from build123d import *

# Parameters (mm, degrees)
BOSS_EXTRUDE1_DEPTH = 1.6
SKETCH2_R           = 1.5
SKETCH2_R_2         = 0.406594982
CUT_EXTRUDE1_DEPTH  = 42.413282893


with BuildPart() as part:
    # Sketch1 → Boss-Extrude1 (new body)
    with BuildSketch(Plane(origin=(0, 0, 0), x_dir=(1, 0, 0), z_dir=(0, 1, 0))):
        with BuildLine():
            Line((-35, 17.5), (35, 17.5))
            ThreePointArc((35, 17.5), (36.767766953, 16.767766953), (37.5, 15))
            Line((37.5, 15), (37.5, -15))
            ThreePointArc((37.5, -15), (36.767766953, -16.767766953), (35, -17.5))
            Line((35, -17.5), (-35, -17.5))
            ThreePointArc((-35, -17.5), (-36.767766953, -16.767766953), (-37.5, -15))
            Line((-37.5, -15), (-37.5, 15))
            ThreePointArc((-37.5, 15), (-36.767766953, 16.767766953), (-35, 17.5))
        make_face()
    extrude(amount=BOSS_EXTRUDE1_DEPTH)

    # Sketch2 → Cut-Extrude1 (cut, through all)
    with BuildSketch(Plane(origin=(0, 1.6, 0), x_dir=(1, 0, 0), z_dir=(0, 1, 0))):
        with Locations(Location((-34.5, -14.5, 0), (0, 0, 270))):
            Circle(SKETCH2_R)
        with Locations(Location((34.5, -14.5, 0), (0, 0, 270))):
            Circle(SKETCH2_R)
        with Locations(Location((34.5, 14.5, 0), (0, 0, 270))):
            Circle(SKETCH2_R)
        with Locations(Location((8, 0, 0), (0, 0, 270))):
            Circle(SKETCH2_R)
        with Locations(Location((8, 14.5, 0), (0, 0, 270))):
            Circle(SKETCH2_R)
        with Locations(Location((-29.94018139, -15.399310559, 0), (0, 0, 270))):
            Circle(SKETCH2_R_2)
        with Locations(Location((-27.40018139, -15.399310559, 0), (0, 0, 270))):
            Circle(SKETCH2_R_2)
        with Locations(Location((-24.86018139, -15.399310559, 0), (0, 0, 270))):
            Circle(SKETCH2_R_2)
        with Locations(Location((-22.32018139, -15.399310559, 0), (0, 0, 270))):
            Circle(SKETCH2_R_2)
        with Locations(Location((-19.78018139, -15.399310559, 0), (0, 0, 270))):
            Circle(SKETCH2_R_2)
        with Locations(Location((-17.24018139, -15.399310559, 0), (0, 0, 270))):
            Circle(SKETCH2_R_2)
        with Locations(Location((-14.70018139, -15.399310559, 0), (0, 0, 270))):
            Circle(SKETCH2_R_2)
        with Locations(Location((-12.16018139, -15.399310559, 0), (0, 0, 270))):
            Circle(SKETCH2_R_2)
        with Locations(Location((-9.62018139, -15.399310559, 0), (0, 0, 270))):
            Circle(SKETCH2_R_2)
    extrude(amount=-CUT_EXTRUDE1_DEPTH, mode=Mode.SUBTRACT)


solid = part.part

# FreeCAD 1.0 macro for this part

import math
import FreeCAD as App
import Part
import Sketcher

doc = App.newDocument("Part")
params = doc.addObject("Spreadsheet::Sheet", "Params")
for row, (alias, value) in enumerate([
    ("sketch1_radius", "2.5 mm"),
    ("sketch1_width", "70 mm"),
    ("sketch1_height", "30 mm"),
    ("pad1_length", "1.6 mm"),
    ("sketch2_diameter", "3 mm"),
], start=1):
    params.set(f"A{row}", alias)
    params.set(f"B{row}", "=" + value)
    params.setAlias(f"B{row}", alias)

body = doc.addObject("PartDesign::Body", "Body")

# Sketch on XZ plane
sketch1 = body.newObject("Sketcher::SketchObject", "Sketch")
sketch1.AttachmentSupport = (doc.getObject("XZ_Plane"), [""])
sketch1.MapMode = "FlatFace"
sketch1.addGeometry(Part.LineSegment(App.Vector(35, -17.5, 0), App.Vector(-35, -17.5, 0)), False)
sketch1.addGeometry(Part.ArcOfCircle(Part.Circle(App.Vector(-35, -15, 0), App.Vector(0, 0, 1), 2.5), math.radians(180), math.radians(270)), False)
sketch1.addGeometry(Part.LineSegment(App.Vector(-37.5, -15, 0), App.Vector(-37.5, 15, 0)), False)
sketch1.addGeometry(Part.ArcOfCircle(Part.Circle(App.Vector(-35, 15, 0), App.Vector(0, 0, 1), 2.5), math.radians(90), math.radians(180)), False)
sketch1.addGeometry(Part.LineSegment(App.Vector(-35, 17.5, 0), App.Vector(35, 17.5, 0)), False)
sketch1.addGeometry(Part.ArcOfCircle(Part.Circle(App.Vector(35, 15, 0), App.Vector(0, 0, 1), 2.5), math.radians(0), math.radians(90)), False)
sketch1.addGeometry(Part.LineSegment(App.Vector(37.5, 15, 0), App.Vector(37.5, -15, 0)), False)
sketch1.addGeometry(Part.ArcOfCircle(Part.Circle(App.Vector(35, -15, 0), App.Vector(0, 0, 1), 2.5), math.radians(-90), math.radians(0)), False)
sketch1.addConstraint(Sketcher.Constraint("Tangent", 0, 2, 1, 2))
sketch1.addConstraint(Sketcher.Constraint("Tangent", 1, 1, 2, 1))
sketch1.addConstraint(Sketcher.Constraint("Tangent", 2, 2, 3, 2))
sketch1.addConstraint(Sketcher.Constraint("Tangent", 3, 1, 4, 1))
sketch1.addConstraint(Sketcher.Constraint("Tangent", 4, 2, 5, 2))
sketch1.addConstraint(Sketcher.Constraint("Tangent", 5, 1, 6, 1))
sketch1.addConstraint(Sketcher.Constraint("Tangent", 6, 2, 7, 2))
sketch1.addConstraint(Sketcher.Constraint("Tangent", 7, 1, 0, 1))
sketch1.addConstraint(Sketcher.Constraint("Horizontal", 0))
sketch1.addConstraint(Sketcher.Constraint("Vertical", 2))
sketch1.addConstraint(Sketcher.Constraint("Horizontal", 4))
sketch1.addConstraint(Sketcher.Constraint("Vertical", 6))
sketch1.addConstraint(Sketcher.Constraint("Equal", 1, 3))
sketch1.addConstraint(Sketcher.Constraint("Equal", 3, 5))
sketch1.addConstraint(Sketcher.Constraint("Equal", 5, 7))
sketch1.addConstraint(Sketcher.Constraint("Symmetric", 1, 3, 5, 3, -1, 1))
sketch1.addConstraint(Sketcher.Constraint("Radius", 1, 2.5))
sketch1.addConstraint(Sketcher.Constraint("DistanceX", 0, 2, 0, 1, 70.0))
sketch1.addConstraint(Sketcher.Constraint("DistanceY", 2, 1, 2, 2, 30.0))
sketch1.setExpression("Constraints[16]", "Params.sketch1_radius")
sketch1.setExpression("Constraints[17]", "Params.sketch1_width")
sketch1.setExpression("Constraints[18]", "Params.sketch1_height")
pad1 = body.newObject("PartDesign::Pad", "Pad")
pad1.Profile = sketch1
pad1.setExpression("Length", "Params.pad1_length")
pad1.Reversed = True

# Sketch on XZ plane
sketch2 = body.newObject("Sketcher::SketchObject", "Sketch001")
sketch2.AttachmentSupport = (doc.getObject("XZ_Plane"), [""])
sketch2.MapMode = "FlatFace"
sketch2.AttachmentOffset = App.Placement(App.Vector(0, 0, -1.6), App.Rotation())
sketch2.addGeometry(Part.Circle(App.Vector(-34.5, 14.5, 0), App.Vector(0, 0, 1), 1.5), False)
sketch2.addGeometry(Part.Circle(App.Vector(34.5, 14.5, 0), App.Vector(0, 0, 1), 1.5), False)
sketch2.addGeometry(Part.Circle(App.Vector(34.5, -14.5, 0), App.Vector(0, 0, 1), 1.5), False)
sketch2.addGeometry(Part.Circle(App.Vector(8, 0, 0), App.Vector(0, 0, 1), 1.5), False)
sketch2.addGeometry(Part.Circle(App.Vector(8, -14.5, 0), App.Vector(0, 0, 1), 1.5), False)
sketch2.addGeometry(Part.Circle(App.Vector(-29.940181, 15.399311, 0), App.Vector(0, 0, 1), 0.406595), False)
sketch2.addGeometry(Part.Circle(App.Vector(-27.400181, 15.399311, 0), App.Vector(0, 0, 1), 0.406595), False)
sketch2.addGeometry(Part.Circle(App.Vector(-24.860181, 15.399311, 0), App.Vector(0, 0, 1), 0.406595), False)
sketch2.addGeometry(Part.Circle(App.Vector(-22.320181, 15.399311, 0), App.Vector(0, 0, 1), 0.406595), False)
sketch2.addGeometry(Part.Circle(App.Vector(-19.780181, 15.399311, 0), App.Vector(0, 0, 1), 0.406595), False)
sketch2.addGeometry(Part.Circle(App.Vector(-17.240181, 15.399311, 0), App.Vector(0, 0, 1), 0.406595), False)
sketch2.addGeometry(Part.Circle(App.Vector(-14.700181, 15.399311, 0), App.Vector(0, 0, 1), 0.406595), False)
sketch2.addGeometry(Part.Circle(App.Vector(-12.160181, 15.399311, 0), App.Vector(0, 0, 1), 0.406595), False)
sketch2.addGeometry(Part.Circle(App.Vector(-9.620181, 15.399311, 0), App.Vector(0, 0, 1), 0.406595), False)
sketch2.addConstraint(Sketcher.Constraint("Equal", 0, 1))
sketch2.addConstraint(Sketcher.Constraint("Equal", 1, 2))
sketch2.addConstraint(Sketcher.Constraint("Equal", 2, 3))
sketch2.addConstraint(Sketcher.Constraint("Equal", 3, 4))
sketch2.addConstraint(Sketcher.Constraint("Equal", 5, 6))
sketch2.addConstraint(Sketcher.Constraint("Equal", 6, 7))
sketch2.addConstraint(Sketcher.Constraint("Equal", 7, 8))
sketch2.addConstraint(Sketcher.Constraint("Equal", 8, 9))
sketch2.addConstraint(Sketcher.Constraint("Equal", 9, 10))
sketch2.addConstraint(Sketcher.Constraint("Equal", 10, 11))
sketch2.addConstraint(Sketcher.Constraint("Equal", 11, 12))
sketch2.addConstraint(Sketcher.Constraint("Equal", 12, 13))
sketch2.addConstraint(Sketcher.Constraint("Symmetric", 0, 3, 2, 3, -1, 1))
sketch2.addConstraint(Sketcher.Constraint("Symmetric", 0, 3, 1, 3, -2))
sketch2.addConstraint(Sketcher.Constraint("PointOnObject", 3, 3, -1))
sketch2.addConstraint(Sketcher.Constraint("Horizontal", 2, 3, 4, 3))
sketch2.addConstraint(Sketcher.Constraint("Horizontal", 5, 3, 6, 3))
sketch2.addConstraint(Sketcher.Constraint("Horizontal", 6, 3, 7, 3))
sketch2.addConstraint(Sketcher.Constraint("Horizontal", 7, 3, 8, 3))
sketch2.addConstraint(Sketcher.Constraint("Horizontal", 8, 3, 9, 3))
sketch2.addConstraint(Sketcher.Constraint("Horizontal", 9, 3, 10, 3))
sketch2.addConstraint(Sketcher.Constraint("Horizontal", 10, 3, 11, 3))
sketch2.addConstraint(Sketcher.Constraint("Horizontal", 11, 3, 12, 3))
sketch2.addConstraint(Sketcher.Constraint("Horizontal", 12, 3, 13, 3))
sketch2.addConstraint(Sketcher.Constraint("Vertical", 3, 3, 4, 3))
sketch2.addConstraint(Sketcher.Constraint("Diameter", 0, 3.0))
sketch2.addConstraint(Sketcher.Constraint("DistanceX", -1, 1, 3, 3, 8.0))
sketch2.addConstraint(Sketcher.Constraint("DistanceX", 0, 3, 1, 3, 69.0))
sketch2.addConstraint(Sketcher.Constraint("DistanceY", 2, 3, 1, 3, 29.0))
sketch2.addConstraint(Sketcher.Constraint("DistanceX", 5, 3, 10, 3, 12.7))
sketch2.addConstraint(Sketcher.Constraint("DistanceX", 6, 3, 11, 3, 12.7))
sketch2.addConstraint(Sketcher.Constraint("DistanceX", 7, 3, 12, 3, 12.7))
sketch2.addConstraint(Sketcher.Constraint("DistanceX", 8, 3, 13, 3, 12.7))
sketch2.addConstraint(Sketcher.Constraint("Diameter", 5, 0.81319))
sketch2.addConstraint(Sketcher.Constraint("DistanceX", 5, 3, 6, 3, 2.54))
sketch2.addConstraint(Sketcher.Constraint("DistanceX", 6, 3, 7, 3, 2.54))
sketch2.addConstraint(Sketcher.Constraint("DistanceX", 7, 3, 8, 3, 2.54))
sketch2.addConstraint(Sketcher.Constraint("DistanceX", 8, 3, 9, 3, 2.54))
sketch2.addConstraint(Sketcher.Constraint("DistanceX", 5, 3, -1, 1, 29.940181))
sketch2.addConstraint(Sketcher.Constraint("DistanceY", -1, 1, 5, 3, 15.399311))
sketch2.setExpression("Constraints[25]", "Params.sketch2_diameter")
pocket1 = body.newObject("PartDesign::Pocket", "Pocket")
pocket1.Profile = sketch2
pocket1.Type = "ThroughAll"
pocket1.Reversed = True

doc.recompute()
